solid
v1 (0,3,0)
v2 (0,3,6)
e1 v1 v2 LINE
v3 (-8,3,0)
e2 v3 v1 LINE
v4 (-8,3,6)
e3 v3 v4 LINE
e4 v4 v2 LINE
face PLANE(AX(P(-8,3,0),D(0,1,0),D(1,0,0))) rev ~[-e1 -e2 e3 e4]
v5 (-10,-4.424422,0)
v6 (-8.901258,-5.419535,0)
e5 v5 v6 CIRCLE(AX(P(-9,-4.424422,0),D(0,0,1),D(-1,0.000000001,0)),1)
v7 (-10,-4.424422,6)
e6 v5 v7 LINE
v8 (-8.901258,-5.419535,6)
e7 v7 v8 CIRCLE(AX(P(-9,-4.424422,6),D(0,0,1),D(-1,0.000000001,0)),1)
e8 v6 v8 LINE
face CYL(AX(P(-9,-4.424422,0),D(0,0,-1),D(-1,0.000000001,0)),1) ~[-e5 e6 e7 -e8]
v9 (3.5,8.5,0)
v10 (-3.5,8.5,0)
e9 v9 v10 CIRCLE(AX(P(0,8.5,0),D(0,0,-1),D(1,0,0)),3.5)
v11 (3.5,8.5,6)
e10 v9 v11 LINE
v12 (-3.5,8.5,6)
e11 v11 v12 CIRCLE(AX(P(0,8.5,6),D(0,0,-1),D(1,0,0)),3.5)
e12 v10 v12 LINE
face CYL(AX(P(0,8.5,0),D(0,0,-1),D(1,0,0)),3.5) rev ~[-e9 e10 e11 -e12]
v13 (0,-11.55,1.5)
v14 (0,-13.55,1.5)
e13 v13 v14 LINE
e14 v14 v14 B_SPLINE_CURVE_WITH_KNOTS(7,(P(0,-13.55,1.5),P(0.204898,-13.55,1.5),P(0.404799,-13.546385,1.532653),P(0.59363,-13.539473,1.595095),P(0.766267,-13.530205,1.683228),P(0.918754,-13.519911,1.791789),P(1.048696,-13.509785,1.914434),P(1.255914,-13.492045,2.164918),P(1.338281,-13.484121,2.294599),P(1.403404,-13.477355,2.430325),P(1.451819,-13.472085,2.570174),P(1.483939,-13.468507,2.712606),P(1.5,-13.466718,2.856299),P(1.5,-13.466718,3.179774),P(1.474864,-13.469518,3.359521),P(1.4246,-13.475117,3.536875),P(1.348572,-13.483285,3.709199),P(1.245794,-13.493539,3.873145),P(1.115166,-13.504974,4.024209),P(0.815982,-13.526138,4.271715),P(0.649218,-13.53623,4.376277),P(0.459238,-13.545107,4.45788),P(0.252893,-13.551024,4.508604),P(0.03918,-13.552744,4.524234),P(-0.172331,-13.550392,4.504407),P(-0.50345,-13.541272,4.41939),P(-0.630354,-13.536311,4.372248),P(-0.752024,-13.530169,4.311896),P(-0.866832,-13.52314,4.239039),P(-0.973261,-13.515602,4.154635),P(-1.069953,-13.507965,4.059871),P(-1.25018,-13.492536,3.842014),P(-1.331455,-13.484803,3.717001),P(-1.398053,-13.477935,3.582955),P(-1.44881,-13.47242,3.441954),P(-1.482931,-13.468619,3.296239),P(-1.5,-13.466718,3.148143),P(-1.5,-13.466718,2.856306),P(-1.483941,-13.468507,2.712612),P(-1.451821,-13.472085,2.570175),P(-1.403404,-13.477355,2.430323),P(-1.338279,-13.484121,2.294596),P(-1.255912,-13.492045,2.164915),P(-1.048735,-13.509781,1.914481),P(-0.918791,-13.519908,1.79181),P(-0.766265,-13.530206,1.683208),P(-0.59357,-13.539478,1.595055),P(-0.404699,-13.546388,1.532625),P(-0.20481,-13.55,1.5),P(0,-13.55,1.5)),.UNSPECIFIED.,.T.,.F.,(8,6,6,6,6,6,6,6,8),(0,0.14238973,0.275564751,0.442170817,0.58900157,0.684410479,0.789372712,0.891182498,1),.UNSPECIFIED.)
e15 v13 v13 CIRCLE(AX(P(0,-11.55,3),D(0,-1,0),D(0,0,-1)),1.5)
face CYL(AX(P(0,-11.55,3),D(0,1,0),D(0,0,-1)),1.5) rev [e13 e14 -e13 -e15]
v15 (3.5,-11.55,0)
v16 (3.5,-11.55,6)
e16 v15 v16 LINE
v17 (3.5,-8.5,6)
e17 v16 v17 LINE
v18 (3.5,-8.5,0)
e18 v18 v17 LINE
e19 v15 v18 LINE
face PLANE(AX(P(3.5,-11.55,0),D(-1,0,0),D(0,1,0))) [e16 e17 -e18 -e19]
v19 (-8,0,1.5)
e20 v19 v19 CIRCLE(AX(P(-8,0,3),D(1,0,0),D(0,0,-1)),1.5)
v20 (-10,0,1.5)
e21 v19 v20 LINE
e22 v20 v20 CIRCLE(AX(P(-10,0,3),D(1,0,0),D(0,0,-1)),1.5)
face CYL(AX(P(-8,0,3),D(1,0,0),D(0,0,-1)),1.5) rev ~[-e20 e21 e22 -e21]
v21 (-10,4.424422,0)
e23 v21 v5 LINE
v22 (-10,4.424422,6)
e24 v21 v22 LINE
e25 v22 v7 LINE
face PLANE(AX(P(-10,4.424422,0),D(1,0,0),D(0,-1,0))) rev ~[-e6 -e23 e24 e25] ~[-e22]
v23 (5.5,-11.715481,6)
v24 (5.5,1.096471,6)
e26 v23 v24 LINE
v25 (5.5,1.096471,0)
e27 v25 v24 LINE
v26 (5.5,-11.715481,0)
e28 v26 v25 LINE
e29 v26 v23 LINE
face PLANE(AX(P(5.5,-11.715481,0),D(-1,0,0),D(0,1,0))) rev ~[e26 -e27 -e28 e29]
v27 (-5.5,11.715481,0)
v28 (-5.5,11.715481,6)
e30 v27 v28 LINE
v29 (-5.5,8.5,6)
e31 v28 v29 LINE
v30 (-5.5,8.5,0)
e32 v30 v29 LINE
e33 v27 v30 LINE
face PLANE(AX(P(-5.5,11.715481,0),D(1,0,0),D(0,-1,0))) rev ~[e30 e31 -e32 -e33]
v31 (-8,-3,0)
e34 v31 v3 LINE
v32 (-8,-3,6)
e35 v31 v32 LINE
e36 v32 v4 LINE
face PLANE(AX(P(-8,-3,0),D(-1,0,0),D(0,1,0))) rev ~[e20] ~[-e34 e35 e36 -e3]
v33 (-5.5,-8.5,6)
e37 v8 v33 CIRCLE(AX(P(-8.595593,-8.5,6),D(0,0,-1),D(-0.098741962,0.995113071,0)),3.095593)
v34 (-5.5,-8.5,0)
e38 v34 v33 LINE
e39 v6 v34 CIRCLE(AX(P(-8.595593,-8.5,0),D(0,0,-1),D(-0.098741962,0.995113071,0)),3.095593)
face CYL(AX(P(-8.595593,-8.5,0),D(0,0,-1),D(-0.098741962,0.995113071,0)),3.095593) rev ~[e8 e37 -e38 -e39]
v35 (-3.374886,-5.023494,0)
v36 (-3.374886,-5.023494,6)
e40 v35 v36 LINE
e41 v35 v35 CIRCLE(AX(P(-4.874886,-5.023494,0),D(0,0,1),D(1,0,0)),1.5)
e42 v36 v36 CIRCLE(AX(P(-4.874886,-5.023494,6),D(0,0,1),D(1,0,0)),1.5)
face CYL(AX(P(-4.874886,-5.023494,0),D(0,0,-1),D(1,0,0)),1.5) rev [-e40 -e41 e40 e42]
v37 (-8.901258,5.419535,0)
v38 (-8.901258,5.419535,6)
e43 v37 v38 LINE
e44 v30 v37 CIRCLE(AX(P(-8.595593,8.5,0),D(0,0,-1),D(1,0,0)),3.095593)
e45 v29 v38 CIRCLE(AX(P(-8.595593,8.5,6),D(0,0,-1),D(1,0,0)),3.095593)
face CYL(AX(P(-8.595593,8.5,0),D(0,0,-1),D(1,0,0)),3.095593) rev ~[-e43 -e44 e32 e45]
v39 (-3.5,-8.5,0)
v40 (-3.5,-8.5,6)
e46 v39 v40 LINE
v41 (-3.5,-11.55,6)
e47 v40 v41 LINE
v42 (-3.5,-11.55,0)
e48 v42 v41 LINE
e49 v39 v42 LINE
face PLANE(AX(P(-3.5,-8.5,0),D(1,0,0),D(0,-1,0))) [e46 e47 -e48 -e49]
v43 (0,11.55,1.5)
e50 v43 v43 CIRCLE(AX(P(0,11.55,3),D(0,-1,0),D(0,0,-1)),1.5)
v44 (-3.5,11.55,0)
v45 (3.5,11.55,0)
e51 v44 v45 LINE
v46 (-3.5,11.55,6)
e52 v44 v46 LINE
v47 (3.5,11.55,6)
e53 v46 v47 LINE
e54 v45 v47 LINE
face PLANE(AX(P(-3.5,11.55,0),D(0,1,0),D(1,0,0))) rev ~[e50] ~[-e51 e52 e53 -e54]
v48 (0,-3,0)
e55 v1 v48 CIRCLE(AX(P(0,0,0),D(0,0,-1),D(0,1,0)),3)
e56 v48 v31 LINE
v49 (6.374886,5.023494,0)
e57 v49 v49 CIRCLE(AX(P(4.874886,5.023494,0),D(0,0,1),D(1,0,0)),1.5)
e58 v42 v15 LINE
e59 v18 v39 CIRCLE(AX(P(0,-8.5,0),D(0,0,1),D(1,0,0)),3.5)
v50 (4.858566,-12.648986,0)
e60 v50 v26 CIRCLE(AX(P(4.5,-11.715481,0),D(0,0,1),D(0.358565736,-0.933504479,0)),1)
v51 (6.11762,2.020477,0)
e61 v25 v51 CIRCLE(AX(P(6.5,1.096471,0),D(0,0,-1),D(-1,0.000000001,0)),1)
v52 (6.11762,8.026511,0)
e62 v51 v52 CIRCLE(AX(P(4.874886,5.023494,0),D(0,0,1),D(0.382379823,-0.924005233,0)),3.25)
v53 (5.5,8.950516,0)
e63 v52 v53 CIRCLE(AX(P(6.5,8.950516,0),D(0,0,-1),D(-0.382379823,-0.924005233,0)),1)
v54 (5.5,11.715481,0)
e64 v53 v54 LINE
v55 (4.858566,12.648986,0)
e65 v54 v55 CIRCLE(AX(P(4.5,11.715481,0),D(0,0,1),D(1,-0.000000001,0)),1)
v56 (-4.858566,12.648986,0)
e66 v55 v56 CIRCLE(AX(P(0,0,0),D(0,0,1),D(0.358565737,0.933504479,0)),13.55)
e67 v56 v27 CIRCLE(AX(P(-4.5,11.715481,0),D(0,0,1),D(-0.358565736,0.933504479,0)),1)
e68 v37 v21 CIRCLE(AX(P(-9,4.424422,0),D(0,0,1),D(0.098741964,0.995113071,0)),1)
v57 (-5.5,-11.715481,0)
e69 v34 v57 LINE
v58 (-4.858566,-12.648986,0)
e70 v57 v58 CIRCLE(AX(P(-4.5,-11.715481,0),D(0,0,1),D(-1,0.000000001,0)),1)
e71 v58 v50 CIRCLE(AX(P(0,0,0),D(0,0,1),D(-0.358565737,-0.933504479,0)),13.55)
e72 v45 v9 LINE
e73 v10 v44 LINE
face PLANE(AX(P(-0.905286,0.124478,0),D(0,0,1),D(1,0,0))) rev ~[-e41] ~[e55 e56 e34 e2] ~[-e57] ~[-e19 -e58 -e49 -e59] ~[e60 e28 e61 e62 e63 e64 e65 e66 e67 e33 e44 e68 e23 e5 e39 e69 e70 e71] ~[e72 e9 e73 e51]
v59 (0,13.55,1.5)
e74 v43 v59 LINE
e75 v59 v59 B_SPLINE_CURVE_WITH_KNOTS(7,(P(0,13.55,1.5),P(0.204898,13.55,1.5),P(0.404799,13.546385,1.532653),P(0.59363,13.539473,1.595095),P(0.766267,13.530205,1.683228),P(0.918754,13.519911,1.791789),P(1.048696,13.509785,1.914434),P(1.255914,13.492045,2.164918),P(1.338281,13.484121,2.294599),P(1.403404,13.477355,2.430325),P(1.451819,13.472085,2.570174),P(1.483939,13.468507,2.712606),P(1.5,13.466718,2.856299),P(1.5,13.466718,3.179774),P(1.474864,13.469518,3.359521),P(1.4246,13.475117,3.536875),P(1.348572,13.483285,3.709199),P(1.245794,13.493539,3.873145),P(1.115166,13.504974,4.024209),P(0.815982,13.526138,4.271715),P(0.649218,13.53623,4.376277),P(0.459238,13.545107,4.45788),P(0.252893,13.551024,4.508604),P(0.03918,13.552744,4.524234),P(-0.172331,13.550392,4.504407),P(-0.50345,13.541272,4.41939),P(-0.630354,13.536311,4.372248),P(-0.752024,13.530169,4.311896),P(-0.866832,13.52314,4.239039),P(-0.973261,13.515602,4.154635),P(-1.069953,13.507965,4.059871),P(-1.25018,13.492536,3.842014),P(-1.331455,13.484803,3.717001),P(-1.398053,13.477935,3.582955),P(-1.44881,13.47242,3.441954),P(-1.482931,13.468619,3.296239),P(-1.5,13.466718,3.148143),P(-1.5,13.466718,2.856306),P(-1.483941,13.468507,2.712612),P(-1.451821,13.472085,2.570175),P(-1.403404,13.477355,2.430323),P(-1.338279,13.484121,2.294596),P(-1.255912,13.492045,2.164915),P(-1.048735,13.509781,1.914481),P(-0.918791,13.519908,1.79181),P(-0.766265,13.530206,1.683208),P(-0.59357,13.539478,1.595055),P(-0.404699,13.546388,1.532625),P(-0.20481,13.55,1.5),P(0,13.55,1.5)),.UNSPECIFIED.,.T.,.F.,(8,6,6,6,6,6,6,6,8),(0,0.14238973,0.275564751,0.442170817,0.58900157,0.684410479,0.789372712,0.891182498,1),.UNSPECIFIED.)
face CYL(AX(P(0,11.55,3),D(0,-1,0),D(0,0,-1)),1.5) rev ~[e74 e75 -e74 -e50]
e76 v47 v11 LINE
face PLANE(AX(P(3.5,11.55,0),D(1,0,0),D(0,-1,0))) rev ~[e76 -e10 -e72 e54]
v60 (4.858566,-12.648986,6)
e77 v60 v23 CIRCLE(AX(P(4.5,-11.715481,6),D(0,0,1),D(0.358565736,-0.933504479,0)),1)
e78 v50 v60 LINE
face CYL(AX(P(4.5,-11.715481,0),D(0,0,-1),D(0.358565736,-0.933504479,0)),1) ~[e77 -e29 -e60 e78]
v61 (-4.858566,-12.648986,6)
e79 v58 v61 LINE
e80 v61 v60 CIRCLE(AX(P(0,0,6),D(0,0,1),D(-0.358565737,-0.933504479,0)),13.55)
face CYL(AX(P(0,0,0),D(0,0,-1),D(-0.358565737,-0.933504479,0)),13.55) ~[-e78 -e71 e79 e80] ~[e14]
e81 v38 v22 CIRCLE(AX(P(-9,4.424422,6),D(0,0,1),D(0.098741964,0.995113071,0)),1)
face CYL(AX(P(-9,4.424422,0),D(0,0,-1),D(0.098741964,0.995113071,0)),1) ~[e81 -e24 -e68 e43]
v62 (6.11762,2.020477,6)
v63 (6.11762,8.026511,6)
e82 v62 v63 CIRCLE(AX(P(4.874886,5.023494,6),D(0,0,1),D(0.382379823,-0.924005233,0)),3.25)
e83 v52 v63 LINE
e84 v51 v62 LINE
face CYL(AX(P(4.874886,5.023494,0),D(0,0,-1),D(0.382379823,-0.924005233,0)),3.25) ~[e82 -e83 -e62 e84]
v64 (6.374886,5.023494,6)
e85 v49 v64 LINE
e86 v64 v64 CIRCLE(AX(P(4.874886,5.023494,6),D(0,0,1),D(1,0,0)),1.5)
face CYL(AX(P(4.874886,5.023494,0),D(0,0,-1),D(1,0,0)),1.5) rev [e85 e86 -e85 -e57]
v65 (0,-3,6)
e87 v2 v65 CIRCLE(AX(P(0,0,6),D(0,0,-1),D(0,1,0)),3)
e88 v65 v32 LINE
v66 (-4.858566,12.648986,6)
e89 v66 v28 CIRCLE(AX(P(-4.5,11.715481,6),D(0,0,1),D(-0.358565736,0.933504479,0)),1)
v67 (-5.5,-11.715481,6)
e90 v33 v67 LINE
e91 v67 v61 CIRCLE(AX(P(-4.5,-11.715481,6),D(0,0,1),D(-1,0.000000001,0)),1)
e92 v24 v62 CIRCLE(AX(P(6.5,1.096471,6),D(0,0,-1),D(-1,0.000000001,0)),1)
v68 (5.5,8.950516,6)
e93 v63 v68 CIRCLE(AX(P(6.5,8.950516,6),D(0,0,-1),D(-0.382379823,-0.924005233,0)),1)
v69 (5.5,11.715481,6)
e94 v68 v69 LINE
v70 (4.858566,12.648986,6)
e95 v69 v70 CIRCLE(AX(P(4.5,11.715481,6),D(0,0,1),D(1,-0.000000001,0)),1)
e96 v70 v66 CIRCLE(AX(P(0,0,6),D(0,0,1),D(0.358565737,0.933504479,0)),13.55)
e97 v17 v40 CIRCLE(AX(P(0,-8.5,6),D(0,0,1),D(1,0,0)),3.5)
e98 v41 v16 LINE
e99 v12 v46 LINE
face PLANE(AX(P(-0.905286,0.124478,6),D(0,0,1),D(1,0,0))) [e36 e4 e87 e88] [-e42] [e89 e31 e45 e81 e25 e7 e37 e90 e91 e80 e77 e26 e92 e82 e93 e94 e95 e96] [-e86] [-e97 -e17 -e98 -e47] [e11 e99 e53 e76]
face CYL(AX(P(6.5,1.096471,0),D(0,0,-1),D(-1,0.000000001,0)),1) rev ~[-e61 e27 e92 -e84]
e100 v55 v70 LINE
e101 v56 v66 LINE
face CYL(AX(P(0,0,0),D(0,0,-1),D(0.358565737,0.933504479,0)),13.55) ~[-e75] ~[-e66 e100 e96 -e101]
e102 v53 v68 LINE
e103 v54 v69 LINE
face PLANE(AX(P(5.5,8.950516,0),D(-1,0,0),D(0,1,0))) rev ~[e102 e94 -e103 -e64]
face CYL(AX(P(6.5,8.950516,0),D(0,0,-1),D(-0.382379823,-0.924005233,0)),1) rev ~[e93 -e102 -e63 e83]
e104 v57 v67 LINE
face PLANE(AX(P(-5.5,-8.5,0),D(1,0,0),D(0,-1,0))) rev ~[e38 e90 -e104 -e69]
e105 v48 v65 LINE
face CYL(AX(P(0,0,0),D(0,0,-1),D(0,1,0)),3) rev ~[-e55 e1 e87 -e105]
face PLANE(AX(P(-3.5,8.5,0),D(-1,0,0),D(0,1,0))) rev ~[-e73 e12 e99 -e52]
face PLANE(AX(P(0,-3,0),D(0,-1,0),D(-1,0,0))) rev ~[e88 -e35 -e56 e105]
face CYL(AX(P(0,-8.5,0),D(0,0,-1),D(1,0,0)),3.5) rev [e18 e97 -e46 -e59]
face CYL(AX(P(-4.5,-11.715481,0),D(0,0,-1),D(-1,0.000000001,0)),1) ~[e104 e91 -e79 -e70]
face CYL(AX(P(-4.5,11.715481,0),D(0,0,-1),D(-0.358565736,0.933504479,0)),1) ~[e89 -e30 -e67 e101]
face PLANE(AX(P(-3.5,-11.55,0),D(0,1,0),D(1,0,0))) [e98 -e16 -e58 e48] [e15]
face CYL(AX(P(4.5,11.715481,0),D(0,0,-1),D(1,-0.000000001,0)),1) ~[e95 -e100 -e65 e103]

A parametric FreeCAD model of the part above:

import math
import FreeCAD as App
import Part
import Sketcher

V = App.Vector

doc = App.newDocument("Part")
body = doc.addObject("PartDesign::Body", "Body")

sketch1 = body.newObject("Sketcher::SketchObject", "Sketch")
sketch1.AttachmentSupport = (doc.getObject("XY_Plane"), [""])
sketch1.MapMode = "FlatFace"
sketch1.addGeometry([
    Part.LineSegment(V(-10, 4.4, 0), V(-10, -4.4, 0)),
    Part.ArcOfCircle(Part.Circle(V(-9, -4.4, 0), V(0, 0, 1), 1), math.radians(180), math.radians(276)),
    Part.ArcOfCircle(Part.Circle(V(-8.6, -8.5, 0), V(0, 0, 1), 3.1), math.radians(0), math.radians(96)),
    Part.LineSegment(V(-5.5, -8.5, 0), V(-5.5, -11.7, 0)),
    Part.ArcOfCircle(Part.Circle(V(-4.5, -11.7, 0), V(0, 0, 1), 1), math.radians(180), math.radians(249)),
    Part.ArcOfCircle(Part.Circle(V(0, 0, 0), V(0, 0, 1), 13.6), math.radians(-111), math.radians(-69)),
    Part.ArcOfCircle(Part.Circle(V(4.5, -11.7, 0), V(0, 0, 1), 1), math.radians(-69), math.radians(0)),
    Part.LineSegment(V(5.5, -11.7, 0), V(5.5, 1.1, 0)),
    Part.ArcOfCircle(Part.Circle(V(6.5, 1.1, 0), V(0, 0, 1), 1), math.radians(112), math.radians(180)),
    Part.ArcOfCircle(Part.Circle(V(4.9, 5, 0), V(0, 0, 1), 3.2), math.radians(-68), math.radians(68)),
    Part.ArcOfCircle(Part.Circle(V(6.5, 9, 0), V(0, 0, 1), 1), math.radians(180), math.radians(248)),
    Part.LineSegment(V(5.5, 9, 0), V(5.5, 11.7, 0)),
    Part.ArcOfCircle(Part.Circle(V(4.5, 11.7, 0), V(0, 0, 1), 1), math.radians(0), math.radians(69)),
    Part.ArcOfCircle(Part.Circle(V(0, 0, 0), V(0, 0, 1), 13.6), math.radians(69), math.radians(111)),
    Part.ArcOfCircle(Part.Circle(V(-4.5, 11.7, 0), V(0, 0, 1), 1), math.radians(111), math.radians(180)),
    Part.LineSegment(V(-5.5, 11.7, 0), V(-5.5, 8.5, 0)),
    Part.ArcOfCircle(Part.Circle(V(-8.6, 8.5, 0), V(0, 0, 1), 3.1), math.radians(-96), math.radians(0)),
    Part.ArcOfCircle(Part.Circle(V(-9, 4.4, 0), V(0, 0, 1), 1), math.radians(84), math.radians(180)),
    Part.Circle(V(-4.9, -5, 0), V(0, 0, 1), 1.5),
    Part.LineSegment(V(3.5, -11.6, 0), V(-3.5, -11.6, 0)),
    Part.LineSegment(V(-3.5, -11.6, 0), V(-3.5, -8.5, 0)),
    Part.ArcOfCircle(Part.Circle(V(0, -8.5, 0), V(0, 0, 1), 3.5), math.radians(0), math.radians(180)),
    Part.LineSegment(V(3.5, -8.5, 0), V(3.5, -11.6, 0)),
    Part.ArcOfCircle(Part.Circle(V(0, 0, 0), V(0, 0, 1), 3), math.radians(-90), math.radians(90)),
    Part.LineSegment(V(0, -3, 0), V(-8, -3, 0)),
    Part.LineSegment(V(-8, -3, 0), V(-8, 3, 0)),
    Part.LineSegment(V(-8, 3, 0), V(0, 3, 0)),
    Part.Circle(V(4.9, 5, 0), V(0, 0, 1), 1.5),
    Part.LineSegment(V(-3.5, 8.5, 0), V(-3.5, 11.6, 0)),
    Part.LineSegment(V(-3.5, 11.6, 0), V(3.5, 11.6, 0)),
    Part.LineSegment(V(3.5, 11.6, 0), V(3.5, 8.5, 0)),
    Part.ArcOfCircle(Part.Circle(V(0, 8.5, 0), V(0, 0, 1), 3.5), math.radians(180), math.radians(360)),
], False)
sketch1.addConstraint([
    Sketcher.Constraint("Tangent", 0, 2, 1, 1),
    Sketcher.Constraint("Tangent", 1, 2, 2, 2),
    Sketcher.Constraint("Tangent", 2, 1, 3, 1),
    Sketcher.Constraint("Tangent", 3, 2, 4, 1),
    Sketcher.Constraint("Tangent", 4, 2, 5, 1),
    Sketcher.Constraint("Tangent", 5, 2, 6, 1),
    Sketcher.Constraint("Tangent", 6, 2, 7, 1),
    Sketcher.Constraint("Tangent", 7, 2, 8, 2),
    Sketcher.Constraint("Tangent", 8, 1, 9, 1),
    Sketcher.Constraint("Tangent", 9, 2, 10, 2),
    Sketcher.Constraint("Tangent", 10, 1, 11, 1),
    Sketcher.Constraint("Tangent", 11, 2, 12, 1),
    Sketcher.Constraint("Tangent", 12, 2, 13, 1),
    Sketcher.Constraint("Tangent", 13, 2, 14, 1),
    Sketcher.Constraint("Tangent", 14, 2, 15, 1),
    Sketcher.Constraint("Tangent", 15, 2, 16, 2),
    Sketcher.Constraint("Tangent", 16, 1, 17, 1),
    Sketcher.Constraint("Tangent", 17, 2, 0, 1),
    Sketcher.Constraint("Coincident", 19, 2, 20, 1),
    Sketcher.Constraint("Tangent", 20, 2, 21, 2),
    Sketcher.Constraint("Tangent", 21, 1, 22, 1),
    Sketcher.Constraint("Coincident", 22, 2, 19, 1),
    Sketcher.Constraint("Tangent", 23, 1, 24, 1),
    Sketcher.Constraint("Coincident", 24, 2, 25, 1),
    Sketcher.Constraint("Coincident", 25, 2, 26, 1),
    Sketcher.Constraint("Tangent", 26, 2, 23, 2),
    Sketcher.Constraint("Coincident", 28, 2, 29, 1),
    Sketcher.Constraint("Coincident", 29, 2, 30, 1),
    Sketcher.Constraint("Tangent", 30, 2, 31, 2),
    Sketcher.Constraint("Tangent", 31, 1, 28, 1),
    Sketcher.Constraint("Vertical", 0),
    Sketcher.Constraint("Vertical", 3),
    Sketcher.Constraint("Vertical", 7),
    Sketcher.Constraint("Vertical", 11),
    Sketcher.Constraint("Vertical", 15),
    Sketcher.Constraint("Horizontal", 19),
    Sketcher.Constraint("Vertical", 20),
    Sketcher.Constraint("Vertical", 22),
    Sketcher.Constraint("Horizontal", 24),
    Sketcher.Constraint("Vertical", 25),
    Sketcher.Constraint("Horizontal", 26),
    Sketcher.Constraint("Vertical", 28),
    Sketcher.Constraint("Horizontal", 29),
    Sketcher.Constraint("Vertical", 30),
    Sketcher.Constraint("Coincident", 5, 3, -1, 1),
    Sketcher.Constraint("Coincident", 13, 3, -1, 1),
    Sketcher.Constraint("Coincident", 23, 3, -1, 1),
    Sketcher.Constraint("Coincident", 27, 3, 9, 3),
    Sketcher.Constraint("Equal", 1, 4),
    Sketcher.Constraint("Equal", 4, 6),
    Sketcher.Constraint("Equal", 6, 8),
    Sketcher.Constraint("Equal", 8, 10),
    Sketcher.Constraint("Equal", 10, 12),
    Sketcher.Constraint("Equal", 5, 13),
    Sketcher.Constraint("Equal", 12, 14),
    Sketcher.Constraint("Equal", 2, 16),
    Sketcher.Constraint("Equal", 14, 17),
    Sketcher.Constraint("Equal", 18, 27),
    Sketcher.Constraint("Equal", 21, 31),
    Sketcher.Constraint("Symmetric", 9, 3, 18, 3, -1, 1),
    Sketcher.Constraint("Symmetric", 21, 3, 31, 3, -1, 1),
    Sketcher.Constraint("Symmetric", 2, 3, 16, 3, -1),
    Sketcher.Constraint("Symmetric", 19, 2, 28, 2, -1),
    Sketcher.Constraint("Horizontal", 4, 3, 6, 3),
    Sketcher.Constraint("Horizontal", 12, 3, 14, 3),
    Sketcher.Constraint("Horizontal", 2, 3, 21, 3),
    Sketcher.Constraint("Diameter", 18, 3.0),
    Sketcher.Constraint("Radius", 1, 1.0),
    Sketcher.Constraint("Radius", 23, 3.0),
    Sketcher.Constraint("Radius", 21, 3.5),
    Sketcher.Constraint("DistanceX", 24, 2, 24, 1, 8.0),
    Sketcher.Constraint("Radius", 5, 13.55),
    Sketcher.Constraint("Radius", 9, 3.25),
    Sketcher.Constraint("DistanceX", 1, 3, -1, 1, 9.0),
    Sketcher.Constraint("DistanceX", 4, 3, 6, 3, 9.0),
    Sketcher.Constraint("DistanceY", 20, 1, 20, 2, 3.05),
    Sketcher.Constraint("DistanceY", 2, 3, -1, 1, 8.5),
    Sketcher.Constraint("Radius", 2, 3.095593),
    Sketcher.Constraint("DistanceY", 7, 1, 7, 2, 12.811953),
    Sketcher.Constraint("DistanceY", 11, 1, 11, 2, 2.764965),
])
pad1 = body.newObject("PartDesign::Pad", "Pad")
pad1.Profile = sketch1
pad1.Length = 6

sketch2 = body.newObject("Sketcher::SketchObject", "Sketch001")
sketch2.AttachmentSupport = (doc.getObject("XZ_Plane"), [""])
sketch2.MapMode = "FlatFace"
sketch2.AttachmentOffset = App.Placement(V(0, 0, -11.55), App.Rotation())
sketch2.addGeometry(Part.Circle(V(0, 3, 0), V(0, 0, 1), 1.5), False)
sketch2.addConstraint([
    Sketcher.Constraint("PointOnObject", 0, 3, -2),
    Sketcher.Constraint("Diameter", 0, 3.0),
    Sketcher.Constraint("DistanceY", -1, 1, 0, 3, 3.0),
])
pocket1 = body.newObject("PartDesign::Pocket", "Pocket")
pocket1.Profile = sketch2
pocket1.Type = "ThroughAll"
doc.recompute()

mirrored = body.newObject("PartDesign::Mirrored", "Mirrored")
mirrored.Originals = [pocket1]
mirrored.MirrorPlane = (doc.getObject("XZ_Plane"), [""])
body.Tip = mirrored

sketch3 = body.newObject("Sketcher::SketchObject", "Sketch002")
sketch3.AttachmentSupport = (doc.getObject("YZ_Plane"), [""])
sketch3.MapMode = "FlatFace"
sketch3.AttachmentOffset = App.Placement(V(0, 0, -8), App.Rotation())
sketch3.addGeometry(Part.Circle(V(0, 3, 0), V(0, 0, 1), 1.5), False)
sketch3.addConstraint([
    Sketcher.Constraint("PointOnObject", 0, 3, -2),
    Sketcher.Constraint("Diameter", 0, 3.0),
    Sketcher.Constraint("DistanceY", -1, 1, 0, 3, 3.0),
])
pocket2 = body.newObject("PartDesign::Pocket", "Pocket001")
pocket2.Profile = sketch3
pocket2.Type = "ThroughAll"

doc.recompute()
